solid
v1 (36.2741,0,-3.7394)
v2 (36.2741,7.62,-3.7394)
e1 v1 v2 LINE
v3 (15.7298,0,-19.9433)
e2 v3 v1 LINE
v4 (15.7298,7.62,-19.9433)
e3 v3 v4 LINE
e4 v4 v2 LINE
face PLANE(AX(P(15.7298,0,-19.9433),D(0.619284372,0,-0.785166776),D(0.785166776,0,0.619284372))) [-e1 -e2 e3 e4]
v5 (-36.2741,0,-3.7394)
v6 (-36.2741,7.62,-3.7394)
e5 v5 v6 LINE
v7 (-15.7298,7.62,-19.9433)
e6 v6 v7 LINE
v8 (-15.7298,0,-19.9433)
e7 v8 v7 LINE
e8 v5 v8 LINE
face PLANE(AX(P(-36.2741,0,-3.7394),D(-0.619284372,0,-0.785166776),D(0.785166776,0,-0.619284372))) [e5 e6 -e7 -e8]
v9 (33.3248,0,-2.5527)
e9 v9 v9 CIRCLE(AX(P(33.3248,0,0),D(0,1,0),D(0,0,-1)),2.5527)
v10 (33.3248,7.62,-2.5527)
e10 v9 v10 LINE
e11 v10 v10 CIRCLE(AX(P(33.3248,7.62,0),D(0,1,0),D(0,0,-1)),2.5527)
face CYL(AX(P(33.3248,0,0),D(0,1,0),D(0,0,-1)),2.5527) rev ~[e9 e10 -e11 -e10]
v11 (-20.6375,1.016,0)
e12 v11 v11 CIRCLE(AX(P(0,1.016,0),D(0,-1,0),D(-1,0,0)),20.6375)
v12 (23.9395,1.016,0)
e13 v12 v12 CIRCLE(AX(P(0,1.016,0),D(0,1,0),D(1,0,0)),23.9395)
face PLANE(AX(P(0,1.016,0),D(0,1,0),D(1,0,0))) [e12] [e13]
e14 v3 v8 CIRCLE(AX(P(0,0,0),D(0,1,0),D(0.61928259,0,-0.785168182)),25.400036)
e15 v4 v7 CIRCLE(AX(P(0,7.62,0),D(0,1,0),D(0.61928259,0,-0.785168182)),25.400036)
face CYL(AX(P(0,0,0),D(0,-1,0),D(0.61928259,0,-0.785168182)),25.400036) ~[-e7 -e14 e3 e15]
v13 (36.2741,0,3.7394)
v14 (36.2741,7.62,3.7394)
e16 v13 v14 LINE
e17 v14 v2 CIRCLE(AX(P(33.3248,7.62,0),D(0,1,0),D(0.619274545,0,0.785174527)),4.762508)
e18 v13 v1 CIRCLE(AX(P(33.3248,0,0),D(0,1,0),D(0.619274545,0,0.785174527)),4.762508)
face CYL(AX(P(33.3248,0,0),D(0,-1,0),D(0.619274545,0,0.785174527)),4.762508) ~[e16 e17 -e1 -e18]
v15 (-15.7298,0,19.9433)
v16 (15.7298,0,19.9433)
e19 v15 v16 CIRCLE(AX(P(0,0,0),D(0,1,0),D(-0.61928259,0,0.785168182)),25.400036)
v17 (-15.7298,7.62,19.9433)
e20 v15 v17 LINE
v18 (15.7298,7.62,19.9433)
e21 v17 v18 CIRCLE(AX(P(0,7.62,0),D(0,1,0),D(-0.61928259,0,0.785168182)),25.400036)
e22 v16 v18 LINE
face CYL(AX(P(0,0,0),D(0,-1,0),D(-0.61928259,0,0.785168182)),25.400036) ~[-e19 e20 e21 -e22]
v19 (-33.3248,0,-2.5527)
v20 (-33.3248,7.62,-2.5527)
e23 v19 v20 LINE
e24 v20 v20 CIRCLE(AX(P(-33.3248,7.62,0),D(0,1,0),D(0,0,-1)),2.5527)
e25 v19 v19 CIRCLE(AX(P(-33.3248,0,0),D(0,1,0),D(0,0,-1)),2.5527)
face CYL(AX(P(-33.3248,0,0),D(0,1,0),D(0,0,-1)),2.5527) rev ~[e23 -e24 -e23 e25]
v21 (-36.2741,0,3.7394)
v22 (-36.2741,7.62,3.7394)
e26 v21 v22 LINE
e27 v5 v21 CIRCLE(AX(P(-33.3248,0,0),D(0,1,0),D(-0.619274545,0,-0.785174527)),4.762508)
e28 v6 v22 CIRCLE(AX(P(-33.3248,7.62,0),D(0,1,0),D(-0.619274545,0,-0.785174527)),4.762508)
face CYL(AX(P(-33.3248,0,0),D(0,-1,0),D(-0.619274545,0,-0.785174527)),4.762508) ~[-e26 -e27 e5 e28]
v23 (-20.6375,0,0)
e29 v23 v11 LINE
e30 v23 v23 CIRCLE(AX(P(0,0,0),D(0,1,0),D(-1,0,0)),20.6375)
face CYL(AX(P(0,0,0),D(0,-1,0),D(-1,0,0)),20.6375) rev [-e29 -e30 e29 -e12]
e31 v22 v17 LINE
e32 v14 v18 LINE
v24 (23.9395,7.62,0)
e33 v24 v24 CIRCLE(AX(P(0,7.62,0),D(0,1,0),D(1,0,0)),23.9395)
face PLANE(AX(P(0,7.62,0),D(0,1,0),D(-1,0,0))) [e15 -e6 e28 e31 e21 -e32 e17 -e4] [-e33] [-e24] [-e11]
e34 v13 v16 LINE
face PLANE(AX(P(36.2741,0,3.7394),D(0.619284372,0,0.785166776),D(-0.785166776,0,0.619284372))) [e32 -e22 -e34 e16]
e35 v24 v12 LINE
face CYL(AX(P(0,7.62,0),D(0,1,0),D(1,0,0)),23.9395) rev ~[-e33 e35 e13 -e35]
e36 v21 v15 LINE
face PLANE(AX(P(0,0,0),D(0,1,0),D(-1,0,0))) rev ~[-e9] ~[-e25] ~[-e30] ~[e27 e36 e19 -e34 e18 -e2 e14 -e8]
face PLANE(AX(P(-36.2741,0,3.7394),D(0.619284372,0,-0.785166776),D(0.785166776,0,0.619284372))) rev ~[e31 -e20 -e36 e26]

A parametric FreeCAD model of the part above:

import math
import FreeCAD as App
import Part
import Sketcher
Q = App.Units.Quantity

doc = App.newDocument("Part")
body = doc.addObject("PartDesign::Body", "Body")

# Sketch on XZ plane
sketch1 = body.newObject("Sketcher::SketchObject", "Sketch")
sketch1.AttachmentSupport = (doc.getObject("XZ_Plane"), [""])
sketch1.MapMode = "FlatFace"
sketch1.addGeometry([
    Part.ArcOfCircle(Part.Circle(App.Vector(-33.3, 0, 0), App.Vector(0, 0, 1), 4.8), math.radians(128), math.radians(232)),  # 0
    Part.LineSegment(App.Vector(-36.3, 3.7, 0), App.Vector(-15.7, 19.9, 0)),  # 1
    Part.ArcOfCircle(Part.Circle(App.Vector(0, 0, 0), App.Vector(0, 0, 1), 25.4), math.radians(52), math.radians(128)),  # 2
    Part.LineSegment(App.Vector(15.7, 19.9, 0), App.Vector(36.3, 3.7, 0)),  # 3
    Part.ArcOfCircle(Part.Circle(App.Vector(33.3, 0, 0), App.Vector(0, 0, 1), 4.8), math.radians(-52), math.radians(52)),  # 4
    Part.LineSegment(App.Vector(36.3, -3.7, 0), App.Vector(15.7, -19.9, 0)),  # 5
    Part.ArcOfCircle(Part.Circle(App.Vector(0, 0, 0), App.Vector(0, 0, 1), 25.4), math.radians(-128), math.radians(-52)),  # 6
    Part.LineSegment(App.Vector(-15.7, -19.9, 0), App.Vector(-36.3, -3.7, 0)),  # 7
    Part.Circle(App.Vector(0, 0, 0), App.Vector(0, 0, 1), 20.6),  # 8
], False)
sketch1.addConstraint([
    Sketcher.Constraint("Tangent", 0, 1, 1, 1),
    Sketcher.Constraint("Tangent", 1, 2, 2, 2),
    Sketcher.Constraint("Tangent", 2, 1, 3, 1),
    Sketcher.Constraint("Tangent", 3, 2, 4, 2),
    Sketcher.Constraint("Tangent", 4, 1, 5, 1),
    Sketcher.Constraint("Tangent", 5, 2, 6, 2),
    Sketcher.Constraint("Tangent", 6, 1, 7, 1),
    Sketcher.Constraint("Tangent", 7, 2, 0, 2),
    Sketcher.Constraint("Coincident", 2, 3, -1, 1),
    Sketcher.Constraint("Coincident", 6, 3, -1, 1),
    Sketcher.Constraint("Coincident", 8, 3, -1, 1),
    Sketcher.Constraint("Equal", 0, 4),
    Sketcher.Constraint("Equal", 2, 6),
    Sketcher.Constraint("Symmetric", 0, 3, 4, 3, -1, 1),
    Sketcher.Constraint("PointOnObject", 0, 3, -1),
    Sketcher.Constraint("Radius", 0, Q("0.1875 in")),
    Sketcher.Constraint("Radius", 2, Q("1 in")),
    Sketcher.Constraint("Diameter", 8, Q("1.625 in")),
    Sketcher.Constraint("DistanceX", 0, 3, -1, 1, Q("1.312 in")),
])
pad1 = body.newObject("PartDesign::Pad", "Pad")
pad1.Profile = sketch1
pad1.Length = Q("0.3 in")
pad1.Reversed = True

# Sketch on XZ plane
sketch2 = body.newObject("Sketcher::SketchObject", "Sketch001")
sketch2.AttachmentSupport = (doc.getObject("XZ_Plane"), [""])
sketch2.MapMode = "FlatFace"
sketch2.AttachmentOffset = App.Placement(App.Vector(0, 0, -0.3 * 25.4), App.Rotation())
sketch2.addGeometry(Part.Circle(App.Vector(0, 0, 0), App.Vector(0, 0, 1), 24), False)
sketch2.addConstraint([
    Sketcher.Constraint("Coincident", 0, 3, -1, 1),
    Sketcher.Constraint("Diameter", 0, Q("1.885 in")),
])
pocket1 = body.newObject("PartDesign::Pocket", "Pocket")
pocket1.Profile = sketch2
pocket1.Length = Q("0.26 in")
pocket1.Reversed = True

# Sketch on XZ plane
sketch3 = body.newObject("Sketcher::SketchObject", "Sketch002")
sketch3.AttachmentSupport = (doc.getObject("XZ_Plane"), [""])
sketch3.MapMode = "FlatFace"
sketch3.addGeometry([
    Part.Circle(App.Vector(-33.3, 0, 0), App.Vector(0, 0, 1), 2.6),
    Part.Circle(App.Vector(33.3, 0, 0), App.Vector(0, 0, 1), 2.6),
], False)
sketch3.addConstraint([
    Sketcher.Constraint("Equal", 0, 1),
    Sketcher.Constraint("Symmetric", 0, 3, 1, 3, -1, 1),
    Sketcher.Constraint("PointOnObject", 0, 3, -1),
    Sketcher.Constraint("Diameter", 0, Q("0.201 in")),
    Sketcher.Constraint("DistanceX", 0, 3, -1, 1, Q("1.312 in")),
])
doc.recompute()
hole = body.newObject("PartDesign::Hole", "Hole")
hole.Profile = sketch3
hole.ThreadType = "None"
hole.Diameter = Q("0.201 in")
hole.DepthType = "ThroughAll"

doc.recompute()
